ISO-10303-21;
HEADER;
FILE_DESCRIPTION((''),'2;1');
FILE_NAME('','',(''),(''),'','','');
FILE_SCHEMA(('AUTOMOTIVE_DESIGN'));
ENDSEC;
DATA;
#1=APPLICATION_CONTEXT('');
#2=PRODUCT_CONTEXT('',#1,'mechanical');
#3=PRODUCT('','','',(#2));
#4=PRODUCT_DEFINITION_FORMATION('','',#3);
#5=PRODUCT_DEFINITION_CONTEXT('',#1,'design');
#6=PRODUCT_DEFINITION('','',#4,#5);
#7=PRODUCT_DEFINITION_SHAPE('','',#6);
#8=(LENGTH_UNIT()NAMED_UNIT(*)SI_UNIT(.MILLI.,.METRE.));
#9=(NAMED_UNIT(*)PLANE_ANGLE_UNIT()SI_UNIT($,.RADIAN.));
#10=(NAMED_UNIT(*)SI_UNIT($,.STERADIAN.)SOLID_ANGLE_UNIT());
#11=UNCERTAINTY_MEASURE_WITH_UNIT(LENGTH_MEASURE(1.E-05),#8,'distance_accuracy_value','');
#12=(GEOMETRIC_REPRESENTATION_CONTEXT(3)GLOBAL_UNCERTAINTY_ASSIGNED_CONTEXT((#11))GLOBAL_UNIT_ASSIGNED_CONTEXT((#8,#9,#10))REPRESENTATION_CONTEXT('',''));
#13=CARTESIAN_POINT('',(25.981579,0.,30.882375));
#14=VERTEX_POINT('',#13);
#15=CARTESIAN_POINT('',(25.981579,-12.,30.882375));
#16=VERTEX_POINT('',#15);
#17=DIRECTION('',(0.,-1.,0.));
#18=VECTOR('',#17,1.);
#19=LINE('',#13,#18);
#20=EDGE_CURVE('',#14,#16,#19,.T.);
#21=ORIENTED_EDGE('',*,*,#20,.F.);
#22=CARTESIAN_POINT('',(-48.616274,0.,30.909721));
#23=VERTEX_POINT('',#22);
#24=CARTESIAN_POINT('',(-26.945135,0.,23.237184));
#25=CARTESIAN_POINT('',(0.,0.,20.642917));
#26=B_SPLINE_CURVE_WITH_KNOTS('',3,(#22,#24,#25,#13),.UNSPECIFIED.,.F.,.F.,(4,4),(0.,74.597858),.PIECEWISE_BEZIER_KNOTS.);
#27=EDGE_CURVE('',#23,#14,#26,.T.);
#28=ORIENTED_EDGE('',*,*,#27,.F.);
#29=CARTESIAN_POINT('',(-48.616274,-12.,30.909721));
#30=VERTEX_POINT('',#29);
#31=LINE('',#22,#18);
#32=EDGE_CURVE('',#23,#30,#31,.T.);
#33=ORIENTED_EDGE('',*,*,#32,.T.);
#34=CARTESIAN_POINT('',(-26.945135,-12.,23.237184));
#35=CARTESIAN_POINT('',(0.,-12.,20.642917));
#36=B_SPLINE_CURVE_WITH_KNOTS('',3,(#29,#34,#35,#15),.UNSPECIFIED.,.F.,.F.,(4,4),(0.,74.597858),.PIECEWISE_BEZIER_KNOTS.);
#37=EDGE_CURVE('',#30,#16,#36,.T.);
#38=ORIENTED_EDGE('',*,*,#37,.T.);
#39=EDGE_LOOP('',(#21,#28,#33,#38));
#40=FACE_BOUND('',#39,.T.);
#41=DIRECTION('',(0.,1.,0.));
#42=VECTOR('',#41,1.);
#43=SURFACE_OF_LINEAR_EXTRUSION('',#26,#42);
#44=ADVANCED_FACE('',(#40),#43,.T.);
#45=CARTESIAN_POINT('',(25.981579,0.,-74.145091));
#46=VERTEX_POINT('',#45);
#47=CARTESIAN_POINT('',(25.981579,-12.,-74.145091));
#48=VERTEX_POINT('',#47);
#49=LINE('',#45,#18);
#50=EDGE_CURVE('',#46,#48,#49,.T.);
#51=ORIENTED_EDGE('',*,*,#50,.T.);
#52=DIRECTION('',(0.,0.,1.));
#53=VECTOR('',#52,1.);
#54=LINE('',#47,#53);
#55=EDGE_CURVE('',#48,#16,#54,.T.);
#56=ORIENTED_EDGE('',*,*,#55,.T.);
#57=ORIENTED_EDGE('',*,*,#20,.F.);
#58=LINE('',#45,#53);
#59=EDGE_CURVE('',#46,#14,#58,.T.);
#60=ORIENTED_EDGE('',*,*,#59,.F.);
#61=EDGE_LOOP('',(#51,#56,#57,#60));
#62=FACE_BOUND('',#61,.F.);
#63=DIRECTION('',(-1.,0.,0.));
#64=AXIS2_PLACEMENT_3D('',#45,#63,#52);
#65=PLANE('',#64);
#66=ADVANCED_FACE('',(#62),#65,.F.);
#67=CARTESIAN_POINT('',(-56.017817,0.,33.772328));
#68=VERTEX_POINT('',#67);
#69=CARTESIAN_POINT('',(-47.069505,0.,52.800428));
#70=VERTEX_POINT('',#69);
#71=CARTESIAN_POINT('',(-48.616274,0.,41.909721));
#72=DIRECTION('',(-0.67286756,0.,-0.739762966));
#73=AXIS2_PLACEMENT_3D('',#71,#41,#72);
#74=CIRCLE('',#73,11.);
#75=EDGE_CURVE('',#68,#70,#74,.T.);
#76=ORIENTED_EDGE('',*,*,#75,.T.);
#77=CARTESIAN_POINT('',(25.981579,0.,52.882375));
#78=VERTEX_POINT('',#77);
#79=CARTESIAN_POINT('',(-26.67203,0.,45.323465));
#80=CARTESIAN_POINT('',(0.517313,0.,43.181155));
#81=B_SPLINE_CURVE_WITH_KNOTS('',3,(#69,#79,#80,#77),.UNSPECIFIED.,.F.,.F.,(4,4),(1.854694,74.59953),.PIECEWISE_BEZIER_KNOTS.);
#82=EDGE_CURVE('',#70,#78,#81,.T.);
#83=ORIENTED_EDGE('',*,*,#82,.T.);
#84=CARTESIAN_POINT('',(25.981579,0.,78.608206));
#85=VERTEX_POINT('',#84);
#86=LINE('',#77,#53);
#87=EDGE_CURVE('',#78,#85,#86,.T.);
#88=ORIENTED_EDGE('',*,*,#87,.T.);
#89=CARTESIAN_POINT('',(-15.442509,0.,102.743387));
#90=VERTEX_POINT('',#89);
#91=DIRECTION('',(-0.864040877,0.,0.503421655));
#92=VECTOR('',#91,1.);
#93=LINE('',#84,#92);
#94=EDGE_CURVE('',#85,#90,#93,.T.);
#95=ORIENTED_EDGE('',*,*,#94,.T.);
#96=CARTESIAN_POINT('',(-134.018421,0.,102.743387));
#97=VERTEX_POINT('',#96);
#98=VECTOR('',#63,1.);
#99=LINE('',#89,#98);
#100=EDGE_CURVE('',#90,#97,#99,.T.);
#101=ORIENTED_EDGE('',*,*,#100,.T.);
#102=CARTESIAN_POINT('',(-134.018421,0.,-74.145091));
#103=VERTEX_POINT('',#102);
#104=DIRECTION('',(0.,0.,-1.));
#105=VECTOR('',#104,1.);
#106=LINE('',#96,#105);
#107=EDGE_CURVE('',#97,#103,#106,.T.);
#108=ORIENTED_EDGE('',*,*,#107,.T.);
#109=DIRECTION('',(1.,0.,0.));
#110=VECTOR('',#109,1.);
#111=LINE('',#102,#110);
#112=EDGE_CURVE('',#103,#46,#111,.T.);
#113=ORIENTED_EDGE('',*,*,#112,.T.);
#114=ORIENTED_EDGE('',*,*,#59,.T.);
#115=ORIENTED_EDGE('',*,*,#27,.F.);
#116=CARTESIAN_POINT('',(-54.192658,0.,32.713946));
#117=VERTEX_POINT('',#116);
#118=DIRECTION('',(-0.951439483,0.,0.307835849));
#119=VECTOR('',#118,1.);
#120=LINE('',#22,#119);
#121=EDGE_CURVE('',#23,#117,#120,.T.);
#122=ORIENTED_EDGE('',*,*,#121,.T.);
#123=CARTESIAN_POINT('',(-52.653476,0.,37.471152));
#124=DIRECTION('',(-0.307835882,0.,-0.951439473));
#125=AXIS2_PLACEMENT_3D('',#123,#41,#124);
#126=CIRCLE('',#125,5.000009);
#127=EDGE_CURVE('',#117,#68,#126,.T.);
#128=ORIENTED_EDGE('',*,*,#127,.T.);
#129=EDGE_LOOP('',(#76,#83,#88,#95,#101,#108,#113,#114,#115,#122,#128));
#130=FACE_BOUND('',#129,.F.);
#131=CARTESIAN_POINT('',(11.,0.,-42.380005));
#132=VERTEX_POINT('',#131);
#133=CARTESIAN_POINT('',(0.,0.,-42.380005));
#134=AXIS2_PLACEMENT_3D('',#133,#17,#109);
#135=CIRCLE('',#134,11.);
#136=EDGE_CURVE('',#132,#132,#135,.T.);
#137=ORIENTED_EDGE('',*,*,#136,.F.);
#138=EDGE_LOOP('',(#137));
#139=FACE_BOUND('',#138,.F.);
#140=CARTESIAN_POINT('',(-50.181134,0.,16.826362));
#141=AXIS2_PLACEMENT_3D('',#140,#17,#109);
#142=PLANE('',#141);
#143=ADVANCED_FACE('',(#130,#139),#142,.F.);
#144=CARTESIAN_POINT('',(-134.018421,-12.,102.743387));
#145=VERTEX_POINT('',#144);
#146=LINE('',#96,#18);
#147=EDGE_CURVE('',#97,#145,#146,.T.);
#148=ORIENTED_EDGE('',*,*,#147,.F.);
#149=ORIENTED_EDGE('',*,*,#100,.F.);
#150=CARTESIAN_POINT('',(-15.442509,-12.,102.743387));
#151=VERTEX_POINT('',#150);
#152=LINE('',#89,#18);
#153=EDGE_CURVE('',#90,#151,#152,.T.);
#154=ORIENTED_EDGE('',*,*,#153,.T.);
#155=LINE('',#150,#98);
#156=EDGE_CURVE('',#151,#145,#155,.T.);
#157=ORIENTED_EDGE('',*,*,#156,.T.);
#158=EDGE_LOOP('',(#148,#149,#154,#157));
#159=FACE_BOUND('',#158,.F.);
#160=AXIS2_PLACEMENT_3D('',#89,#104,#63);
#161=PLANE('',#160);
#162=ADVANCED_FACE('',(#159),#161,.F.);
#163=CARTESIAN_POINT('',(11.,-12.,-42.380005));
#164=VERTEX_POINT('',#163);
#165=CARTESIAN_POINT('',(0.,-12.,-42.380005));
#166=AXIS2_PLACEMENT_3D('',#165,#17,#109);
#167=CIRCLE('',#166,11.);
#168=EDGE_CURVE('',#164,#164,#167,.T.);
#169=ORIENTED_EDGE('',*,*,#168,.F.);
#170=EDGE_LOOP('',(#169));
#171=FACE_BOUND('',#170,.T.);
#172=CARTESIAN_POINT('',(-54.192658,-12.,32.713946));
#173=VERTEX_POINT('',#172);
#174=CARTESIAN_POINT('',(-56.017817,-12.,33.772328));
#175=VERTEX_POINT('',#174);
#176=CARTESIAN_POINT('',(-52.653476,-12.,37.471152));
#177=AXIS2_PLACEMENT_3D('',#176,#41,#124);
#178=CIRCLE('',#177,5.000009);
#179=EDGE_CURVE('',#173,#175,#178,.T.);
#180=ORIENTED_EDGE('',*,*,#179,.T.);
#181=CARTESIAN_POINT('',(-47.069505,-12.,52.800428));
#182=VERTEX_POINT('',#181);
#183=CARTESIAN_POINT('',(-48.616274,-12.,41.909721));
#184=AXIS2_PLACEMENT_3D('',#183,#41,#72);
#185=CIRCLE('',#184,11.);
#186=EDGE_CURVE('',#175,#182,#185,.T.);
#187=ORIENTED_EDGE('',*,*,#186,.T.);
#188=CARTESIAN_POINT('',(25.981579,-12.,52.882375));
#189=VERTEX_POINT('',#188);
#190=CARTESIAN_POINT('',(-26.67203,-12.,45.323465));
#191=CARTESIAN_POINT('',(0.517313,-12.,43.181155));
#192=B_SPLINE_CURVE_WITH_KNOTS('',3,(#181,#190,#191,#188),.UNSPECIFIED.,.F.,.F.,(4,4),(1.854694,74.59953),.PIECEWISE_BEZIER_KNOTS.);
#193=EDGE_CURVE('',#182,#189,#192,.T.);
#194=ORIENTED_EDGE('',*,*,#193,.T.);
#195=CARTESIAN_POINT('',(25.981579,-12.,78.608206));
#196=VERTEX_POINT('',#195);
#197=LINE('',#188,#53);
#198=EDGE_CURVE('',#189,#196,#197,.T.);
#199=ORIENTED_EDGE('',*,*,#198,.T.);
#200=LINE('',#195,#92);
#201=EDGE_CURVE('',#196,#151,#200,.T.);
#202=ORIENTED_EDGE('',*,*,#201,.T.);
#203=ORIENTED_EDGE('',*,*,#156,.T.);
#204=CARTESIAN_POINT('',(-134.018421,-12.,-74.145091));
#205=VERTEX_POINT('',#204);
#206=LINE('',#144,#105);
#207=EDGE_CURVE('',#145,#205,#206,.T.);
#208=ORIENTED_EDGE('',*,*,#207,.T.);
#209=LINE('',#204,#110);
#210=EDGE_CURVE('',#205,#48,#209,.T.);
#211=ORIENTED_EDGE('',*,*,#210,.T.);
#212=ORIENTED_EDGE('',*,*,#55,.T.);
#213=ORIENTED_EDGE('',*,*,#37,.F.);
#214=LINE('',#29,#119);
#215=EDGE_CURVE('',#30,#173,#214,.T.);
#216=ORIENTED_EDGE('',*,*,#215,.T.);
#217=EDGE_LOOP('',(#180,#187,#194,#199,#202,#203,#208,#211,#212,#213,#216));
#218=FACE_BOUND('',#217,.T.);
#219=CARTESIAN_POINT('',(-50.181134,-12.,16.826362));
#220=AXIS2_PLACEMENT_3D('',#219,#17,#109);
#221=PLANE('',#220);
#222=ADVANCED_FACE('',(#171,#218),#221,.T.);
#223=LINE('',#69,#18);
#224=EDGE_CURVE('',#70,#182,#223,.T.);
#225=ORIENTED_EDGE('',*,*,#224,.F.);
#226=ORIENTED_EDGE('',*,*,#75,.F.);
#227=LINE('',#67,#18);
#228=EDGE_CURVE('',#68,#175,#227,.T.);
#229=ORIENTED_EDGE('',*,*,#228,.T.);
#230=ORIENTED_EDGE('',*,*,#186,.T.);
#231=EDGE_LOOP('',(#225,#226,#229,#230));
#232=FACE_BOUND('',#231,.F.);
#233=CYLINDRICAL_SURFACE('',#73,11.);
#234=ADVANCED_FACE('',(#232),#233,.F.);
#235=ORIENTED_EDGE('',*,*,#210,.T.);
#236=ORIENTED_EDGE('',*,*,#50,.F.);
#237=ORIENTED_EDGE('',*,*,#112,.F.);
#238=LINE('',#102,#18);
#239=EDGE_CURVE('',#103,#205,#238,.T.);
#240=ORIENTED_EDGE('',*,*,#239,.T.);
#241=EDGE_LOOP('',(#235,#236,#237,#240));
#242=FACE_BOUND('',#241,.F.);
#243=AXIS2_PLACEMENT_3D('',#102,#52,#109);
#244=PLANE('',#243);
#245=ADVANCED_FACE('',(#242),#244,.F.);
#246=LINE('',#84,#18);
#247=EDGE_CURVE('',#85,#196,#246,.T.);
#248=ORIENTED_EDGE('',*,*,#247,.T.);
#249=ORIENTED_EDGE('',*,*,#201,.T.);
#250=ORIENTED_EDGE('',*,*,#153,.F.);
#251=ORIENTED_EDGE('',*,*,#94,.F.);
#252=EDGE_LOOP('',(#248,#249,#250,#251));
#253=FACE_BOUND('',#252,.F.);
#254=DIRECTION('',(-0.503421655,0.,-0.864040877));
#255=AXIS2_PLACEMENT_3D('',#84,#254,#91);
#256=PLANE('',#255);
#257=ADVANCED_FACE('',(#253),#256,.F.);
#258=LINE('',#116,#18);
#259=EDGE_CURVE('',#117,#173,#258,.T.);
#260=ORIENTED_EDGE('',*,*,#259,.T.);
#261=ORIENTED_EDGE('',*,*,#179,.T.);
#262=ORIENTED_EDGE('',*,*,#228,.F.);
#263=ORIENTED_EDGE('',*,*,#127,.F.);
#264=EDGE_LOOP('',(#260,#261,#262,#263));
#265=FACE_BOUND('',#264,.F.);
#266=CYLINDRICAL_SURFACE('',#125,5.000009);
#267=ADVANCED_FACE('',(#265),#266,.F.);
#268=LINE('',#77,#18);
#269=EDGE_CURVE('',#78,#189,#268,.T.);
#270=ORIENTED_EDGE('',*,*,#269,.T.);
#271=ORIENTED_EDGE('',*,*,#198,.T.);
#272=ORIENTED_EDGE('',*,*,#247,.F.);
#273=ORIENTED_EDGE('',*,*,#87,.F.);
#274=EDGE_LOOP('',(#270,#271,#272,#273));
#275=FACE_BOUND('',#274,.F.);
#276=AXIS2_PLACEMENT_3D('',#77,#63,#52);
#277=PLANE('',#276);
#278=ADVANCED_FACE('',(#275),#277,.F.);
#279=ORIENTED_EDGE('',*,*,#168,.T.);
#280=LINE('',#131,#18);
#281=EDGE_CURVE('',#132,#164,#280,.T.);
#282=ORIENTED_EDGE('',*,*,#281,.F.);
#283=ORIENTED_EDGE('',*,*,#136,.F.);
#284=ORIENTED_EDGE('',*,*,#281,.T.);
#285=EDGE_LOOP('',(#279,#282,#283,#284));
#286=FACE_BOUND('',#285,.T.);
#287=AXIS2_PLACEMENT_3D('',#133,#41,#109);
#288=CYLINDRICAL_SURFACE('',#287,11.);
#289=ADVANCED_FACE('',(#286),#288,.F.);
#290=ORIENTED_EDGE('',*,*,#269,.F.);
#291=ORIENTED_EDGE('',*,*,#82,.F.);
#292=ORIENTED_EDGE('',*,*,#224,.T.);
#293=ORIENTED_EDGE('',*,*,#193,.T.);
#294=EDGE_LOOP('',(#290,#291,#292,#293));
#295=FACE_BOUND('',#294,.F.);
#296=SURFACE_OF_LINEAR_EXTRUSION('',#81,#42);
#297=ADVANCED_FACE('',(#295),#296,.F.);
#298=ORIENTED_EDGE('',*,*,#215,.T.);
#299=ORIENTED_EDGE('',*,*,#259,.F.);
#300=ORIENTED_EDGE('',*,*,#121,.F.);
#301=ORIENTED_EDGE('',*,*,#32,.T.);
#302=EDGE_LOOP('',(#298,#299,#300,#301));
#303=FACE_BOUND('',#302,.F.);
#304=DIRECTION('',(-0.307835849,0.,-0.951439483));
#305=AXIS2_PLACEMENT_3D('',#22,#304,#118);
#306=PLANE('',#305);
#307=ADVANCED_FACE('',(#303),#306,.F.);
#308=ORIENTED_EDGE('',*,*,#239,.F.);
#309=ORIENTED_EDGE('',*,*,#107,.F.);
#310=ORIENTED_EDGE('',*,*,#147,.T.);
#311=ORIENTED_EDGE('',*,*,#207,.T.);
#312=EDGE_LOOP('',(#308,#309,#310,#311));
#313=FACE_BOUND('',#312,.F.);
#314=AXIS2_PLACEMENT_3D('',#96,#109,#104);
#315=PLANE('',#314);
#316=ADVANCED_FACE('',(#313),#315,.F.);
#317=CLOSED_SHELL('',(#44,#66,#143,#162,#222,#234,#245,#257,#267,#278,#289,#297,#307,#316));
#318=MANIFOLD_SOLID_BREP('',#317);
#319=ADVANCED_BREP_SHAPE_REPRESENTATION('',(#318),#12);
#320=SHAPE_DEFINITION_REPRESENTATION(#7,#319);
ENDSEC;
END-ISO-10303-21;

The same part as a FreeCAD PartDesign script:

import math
import FreeCAD as App
import Part
import Sketcher
Q = App.Units.Quantity

doc = App.newDocument("Part")
body = doc.addObject("PartDesign::Body", "Body")

# Sketch on XZ plane
sketch1 = body.newObject("Sketcher::SketchObject", "Sketch")
sketch1.AttachmentSupport = (doc.getObject("XZ_Plane"), [""])
sketch1.MapMode = "FlatFace"
sketch1.addGeometry(Part.LineSegment(App.Vector(25.981579, 78.608206, 0), App.Vector(-15.442509, 102.743387, 0)), False)
sketch1.addGeometry(Part.LineSegment(App.Vector(-15.442509, 102.743387, 0), App.Vector(-134.018421, 102.743387, 0)), False)
sketch1.addGeometry(Part.LineSegment(App.Vector(-134.018421, 102.743387, 0), App.Vector(-134.018421, -74.145091, 0)), False)
sketch1.addGeometry(Part.LineSegment(App.Vector(-134.018421, -74.145091, 0), App.Vector(25.981579, -74.145091, 0)), False)
sketch1.addGeometry(Part.LineSegment(App.Vector(25.981579, -74.145091, 0), App.Vector(25.981579, 30.882375, 0)), False)
sketch1.addGeometry(Part.BSplineCurve([App.Vector(-48.616274, 30.909721, 0), App.Vector(-26.945135, 23.237184, 0), App.Vector(0, 20.642917, 0), App.Vector(25.981579, 30.882375, 0)], [4, 4], [0, 74.597858], False, 3, [1, 1, 1, 1], False), False)
sketch1.addGeometry(Part.LineSegment(App.Vector(-48.616274, 30.909721, 0), App.Vector(-54.192658, 32.713946, 0)), False)
sketch1.addGeometry(Part.ArcOfCircle(Part.Circle(App.Vector(-52.653476, 37.471152, 0), App.Vector(0, 0, 1), 5.000009), math.radians(-132.288731), math.radians(-107.928859)), False)
sketch1.addGeometry(Part.ArcOfCircle(Part.Circle(App.Vector(-48.616274, 41.909721, 0), App.Vector(0, 0, 1), 11), math.radians(81.916545), math.radians(227.711228)), False)
sketch1.addGeometry(Part.BSplineCurve([App.Vector(-47.069505, 52.800428, 0), App.Vector(-26.67203, 45.323465, 0), App.Vector(0.517313, 43.181155, 0), App.Vector(25.981579, 52.882375, 0)], [4, 4], [1.854694, 74.59953], False, 3, [1, 1, 1, 1], False), False)
sketch1.addGeometry(Part.LineSegment(App.Vector(25.981579, 52.882375, 0), App.Vector(25.981579, 78.608206, 0)), False)
sketch1.addGeometry(Part.Circle(App.Vector(0, -42.380005, 0), App.Vector(0, 0, 1), 11), False)
sketch1.addConstraint(Sketcher.Constraint("Block", 5))
sketch1.addConstraint(Sketcher.Constraint("Block", 9))
sketch1.addConstraint(Sketcher.Constraint("Coincident", 0, 2, 1, 1))
sketch1.addConstraint(Sketcher.Constraint("Coincident", 1, 2, 2, 1))
sketch1.addConstraint(Sketcher.Constraint("Coincident", 2, 2, 3, 1))
sketch1.addConstraint(Sketcher.Constraint("Coincident", 3, 2, 4, 1))
sketch1.addConstraint(Sketcher.Constraint("Coincident", 4, 2, 5, 2))
sketch1.addConstraint(Sketcher.Constraint("Coincident", 5, 1, 6, 1))
sketch1.addConstraint(Sketcher.Constraint("Coincident", 6, 2, 7, 2))
sketch1.addConstraint(Sketcher.Constraint("Coincident", 7, 1, 8, 2))
sketch1.addConstraint(Sketcher.Constraint("Coincident", 8, 1, 9, 1))
sketch1.addConstraint(Sketcher.Constraint("Coincident", 9, 2, 10, 1))
sketch1.addConstraint(Sketcher.Constraint("Coincident", 10, 2, 0, 1))
sketch1.addConstraint(Sketcher.Constraint("Horizontal", 1))
sketch1.addConstraint(Sketcher.Constraint("Vertical", 2))
sketch1.addConstraint(Sketcher.Constraint("Horizontal", 3))
sketch1.addConstraint(Sketcher.Constraint("Vertical", 4))
sketch1.addConstraint(Sketcher.Constraint("Vertical", 10))
sketch1.addConstraint(Sketcher.Constraint("PointOnObject", 11, 3, -2))
sketch1.addConstraint(Sketcher.Constraint("Diameter", 11, Q("22 mm")))
sketch1.addConstraint(Sketcher.Constraint("Radius", 8, Q("11 mm")))
sketch1.addConstraint(Sketcher.Constraint("DistanceX", 3, 1, 3, 2, Q("160 mm")))
sketch1.addConstraint(Sketcher.Constraint("Radius", 7, Q("5.000009 mm")))
sketch1.addConstraint(Sketcher.Constraint("DistanceX", 1, 2, 1, 1, Q("118.575912 mm")))
sketch1.addConstraint(Sketcher.Constraint("DistanceY", 2, 2, 2, 1, Q("176.888478 mm")))
sketch1.addConstraint(Sketcher.Constraint("DistanceY", 10, 1, 10, 2, Q("25.725831 mm")))
sketch1.addConstraint(Sketcher.Constraint("DistanceX", 7, 3, 8, 3, Q("4.037202 mm")))
sketch1.addConstraint(Sketcher.Constraint("DistanceY", 7, 1, 8, 1, Q("19.0281 mm")))
sketch1.addConstraint(Sketcher.Constraint("Distance", 0, Q("47.942278 mm")))
sketch1.addConstraint(Sketcher.Constraint("DistanceY", -1, 1, 7, 3, Q("37.471152 mm")))
sketch1.addConstraint(Sketcher.Constraint("DistanceX", 6, 2, -1, 1, Q("54.192658 mm")))
sketch1.addConstraint(Sketcher.Constraint("DistanceY", 11, 3, 0, 2, Q("145.123392 mm")))
pad1 = body.newObject("PartDesign::Pad", "Pad")
pad1.Profile = sketch1
pad1.Length = 12

doc.recompute()
